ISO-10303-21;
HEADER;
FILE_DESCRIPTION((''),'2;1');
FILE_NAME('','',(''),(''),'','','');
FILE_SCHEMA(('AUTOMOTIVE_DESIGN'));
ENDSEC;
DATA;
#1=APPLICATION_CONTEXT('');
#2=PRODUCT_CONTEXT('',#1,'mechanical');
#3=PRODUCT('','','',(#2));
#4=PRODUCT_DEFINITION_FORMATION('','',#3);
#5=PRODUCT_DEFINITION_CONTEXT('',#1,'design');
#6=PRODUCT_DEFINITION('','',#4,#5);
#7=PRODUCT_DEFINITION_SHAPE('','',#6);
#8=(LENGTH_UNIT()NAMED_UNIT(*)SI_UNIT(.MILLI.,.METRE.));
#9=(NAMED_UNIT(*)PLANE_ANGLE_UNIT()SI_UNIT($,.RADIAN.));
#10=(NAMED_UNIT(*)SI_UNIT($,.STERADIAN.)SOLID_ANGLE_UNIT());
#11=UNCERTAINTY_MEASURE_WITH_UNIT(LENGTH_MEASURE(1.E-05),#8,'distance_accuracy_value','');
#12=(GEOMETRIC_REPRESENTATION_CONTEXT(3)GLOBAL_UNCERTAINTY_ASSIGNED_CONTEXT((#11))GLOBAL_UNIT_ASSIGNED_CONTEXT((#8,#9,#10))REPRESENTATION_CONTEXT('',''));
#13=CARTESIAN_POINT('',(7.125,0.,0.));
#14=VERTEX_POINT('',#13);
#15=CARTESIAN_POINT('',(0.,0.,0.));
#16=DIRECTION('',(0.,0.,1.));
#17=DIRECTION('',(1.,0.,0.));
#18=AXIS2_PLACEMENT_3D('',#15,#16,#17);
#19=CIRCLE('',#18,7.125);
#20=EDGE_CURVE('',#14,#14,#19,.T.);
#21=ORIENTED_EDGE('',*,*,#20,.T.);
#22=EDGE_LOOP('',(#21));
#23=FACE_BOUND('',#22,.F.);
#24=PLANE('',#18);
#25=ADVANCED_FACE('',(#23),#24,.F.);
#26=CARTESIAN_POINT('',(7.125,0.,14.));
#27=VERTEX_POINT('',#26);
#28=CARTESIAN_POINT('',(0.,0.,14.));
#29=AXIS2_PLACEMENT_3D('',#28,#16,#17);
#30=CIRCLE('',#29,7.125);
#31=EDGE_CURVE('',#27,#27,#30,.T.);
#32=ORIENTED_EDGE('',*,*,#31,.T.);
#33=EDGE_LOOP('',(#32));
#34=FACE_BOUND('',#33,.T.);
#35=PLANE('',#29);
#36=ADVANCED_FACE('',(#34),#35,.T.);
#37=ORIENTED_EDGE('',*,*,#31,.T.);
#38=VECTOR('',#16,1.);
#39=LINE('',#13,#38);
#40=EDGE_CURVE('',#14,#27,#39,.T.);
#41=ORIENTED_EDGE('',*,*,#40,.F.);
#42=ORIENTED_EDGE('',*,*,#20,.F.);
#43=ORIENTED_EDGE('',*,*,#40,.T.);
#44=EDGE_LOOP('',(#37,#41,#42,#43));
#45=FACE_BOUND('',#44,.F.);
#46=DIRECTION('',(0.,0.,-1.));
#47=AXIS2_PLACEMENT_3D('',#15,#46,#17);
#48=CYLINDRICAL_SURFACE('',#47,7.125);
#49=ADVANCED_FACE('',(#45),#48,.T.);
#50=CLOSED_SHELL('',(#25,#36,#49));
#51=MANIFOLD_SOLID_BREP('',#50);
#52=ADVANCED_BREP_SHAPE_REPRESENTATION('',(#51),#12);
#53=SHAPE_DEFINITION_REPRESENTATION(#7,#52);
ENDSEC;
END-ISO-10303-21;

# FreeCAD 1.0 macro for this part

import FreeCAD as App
import Part
import Sketcher
Q = App.Units.Quantity

doc = App.newDocument("Part")
body = doc.addObject("PartDesign::Body", "Body")

sketch1 = doc.addObject("Sketcher::SketchObject", "Sketch")
body.addObject(sketch1)
sketch1.AttachmentSupport = (doc.XY_Plane, [""])
sketch1.MapMode = "FlatFace"
sketch1.addGeometry(Part.Circle(App.Vector(0, 0, 0), App.Vector(0, 0, 1), 7), False)
sketch1.addConstraint([
    Sketcher.Constraint("Coincident", 0, 3, -1, 1),
    Sketcher.Constraint("Diameter", 0, Q("14.25 mm")),
])
pad1 = doc.addObject("PartDesign::Pad", "Pad")
body.addObject(pad1)
pad1.Profile = sketch1
pad1.Length = 14

doc.recompute()
